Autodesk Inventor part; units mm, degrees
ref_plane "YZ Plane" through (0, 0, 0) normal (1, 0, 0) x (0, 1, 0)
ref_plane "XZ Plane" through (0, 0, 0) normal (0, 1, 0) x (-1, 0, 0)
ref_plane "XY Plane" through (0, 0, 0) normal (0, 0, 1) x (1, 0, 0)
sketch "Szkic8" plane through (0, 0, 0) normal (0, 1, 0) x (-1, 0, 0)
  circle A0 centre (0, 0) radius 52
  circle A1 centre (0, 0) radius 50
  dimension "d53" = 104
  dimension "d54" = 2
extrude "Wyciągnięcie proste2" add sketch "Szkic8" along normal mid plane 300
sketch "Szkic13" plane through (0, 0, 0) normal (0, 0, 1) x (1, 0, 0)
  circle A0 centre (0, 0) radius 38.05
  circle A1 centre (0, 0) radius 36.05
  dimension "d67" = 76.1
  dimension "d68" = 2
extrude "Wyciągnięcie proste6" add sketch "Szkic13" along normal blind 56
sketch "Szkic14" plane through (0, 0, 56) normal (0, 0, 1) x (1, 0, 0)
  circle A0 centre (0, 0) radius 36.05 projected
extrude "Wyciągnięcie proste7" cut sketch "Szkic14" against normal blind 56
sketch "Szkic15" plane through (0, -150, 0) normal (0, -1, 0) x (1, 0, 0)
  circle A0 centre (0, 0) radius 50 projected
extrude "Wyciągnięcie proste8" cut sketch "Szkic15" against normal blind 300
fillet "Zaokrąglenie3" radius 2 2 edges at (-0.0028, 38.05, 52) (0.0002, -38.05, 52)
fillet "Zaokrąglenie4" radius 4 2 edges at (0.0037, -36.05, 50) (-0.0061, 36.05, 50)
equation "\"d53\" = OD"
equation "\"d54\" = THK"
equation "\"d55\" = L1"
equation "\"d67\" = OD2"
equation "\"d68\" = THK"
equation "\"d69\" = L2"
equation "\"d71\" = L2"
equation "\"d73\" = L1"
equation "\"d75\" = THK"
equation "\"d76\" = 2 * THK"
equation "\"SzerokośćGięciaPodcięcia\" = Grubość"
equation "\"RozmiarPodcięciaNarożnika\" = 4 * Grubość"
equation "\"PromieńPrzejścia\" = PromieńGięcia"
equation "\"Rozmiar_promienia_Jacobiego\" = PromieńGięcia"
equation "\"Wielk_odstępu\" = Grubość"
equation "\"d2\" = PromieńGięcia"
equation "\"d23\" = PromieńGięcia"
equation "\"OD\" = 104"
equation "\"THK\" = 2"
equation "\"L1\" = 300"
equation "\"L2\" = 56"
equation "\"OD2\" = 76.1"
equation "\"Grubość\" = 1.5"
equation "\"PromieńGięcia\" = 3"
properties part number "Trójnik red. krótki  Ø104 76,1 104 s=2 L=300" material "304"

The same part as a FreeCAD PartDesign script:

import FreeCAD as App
import Part
import Sketcher
from FreeCAD import Vector


def edges_at(feature, points):
    """Names of the edges that pass closest to the given points."""
    edges = feature.Shape.Edges
    near = lambda p: min(range(len(edges)), key=lambda i: edges[i].distToShape(Part.Vertex(*p))[0])
    return sorted({f"Edge{near(p) + 1}" for p in points})

doc = App.newDocument("Part")
body = doc.addObject("PartDesign::Body", "Body")

# Sketch on XZ plane
sketch1 = body.newObject("Sketcher::SketchObject", "Sketch")
sketch1.AttachmentSupport = (doc.getObject("XZ_Plane"), [""])
sketch1.MapMode = "FlatFace"
sketch1.addGeometry(Part.Circle(Vector(0, 0, 0), Vector(0, 0, 1), 52), False)
sketch1.addGeometry(Part.Circle(Vector(0, 0, 0), Vector(0, 0, 1), 50), False)
sketch1.addConstraint(Sketcher.Constraint("Coincident", 0, 3, -1, 1))
sketch1.addConstraint(Sketcher.Constraint("Coincident", 1, 3, -1, 1))
sketch1.addConstraint(Sketcher.Constraint("Diameter", 0, 104.0))
sketch1.addConstraint(Sketcher.Constraint("Diameter", 1, 100.0))
pad1 = body.newObject("PartDesign::Pad", "Pad")
pad1.Profile = sketch1
pad1.Length = 300
pad1.Midplane = True

# Sketch on XY plane
sketch2 = body.newObject("Sketcher::SketchObject", "Sketch001")
sketch2.AttachmentSupport = (doc.getObject("XY_Plane"), [""])
sketch2.MapMode = "FlatFace"
sketch2.addGeometry(Part.Circle(Vector(0, 0, 0), Vector(0, 0, 1), 38.05), False)
sketch2.addGeometry(Part.Circle(Vector(0, 0, 0), Vector(0, 0, 1), 36.05), False)
sketch2.addConstraint(Sketcher.Constraint("Coincident", 0, 3, -1, 1))
sketch2.addConstraint(Sketcher.Constraint("Coincident", 1, 3, -1, 1))
sketch2.addConstraint(Sketcher.Constraint("Diameter", 0, 76.1))
sketch2.addConstraint(Sketcher.Constraint("Diameter", 1, 72.1))
pad2 = body.newObject("PartDesign::Pad", "Pad001")
pad2.Profile = sketch2
pad2.Length = 56

# Sketch on XY plane
sketch3 = body.newObject("Sketcher::SketchObject", "Sketch002")
sketch3.AttachmentSupport = (doc.getObject("XY_Plane"), [""])
sketch3.MapMode = "FlatFace"
sketch3.AttachmentOffset = App.Placement(Vector(0, 0, 56), App.Rotation())
sketch3.addGeometry(Part.Circle(Vector(0, 0, 0), Vector(0, 0, 1), 36.05), False)
sketch3.addConstraint(Sketcher.Constraint("Coincident", 0, 3, -1, 1))
sketch3.addConstraint(Sketcher.Constraint("Diameter", 0, 72.1))
pocket1 = body.newObject("PartDesign::Pocket", "Pocket")
pocket1.Profile = sketch3
pocket1.Length = 56

# Sketch on XZ plane
sketch4 = body.newObject("Sketcher::SketchObject", "Sketch003")
sketch4.AttachmentSupport = (doc.getObject("XZ_Plane"), [""])
sketch4.MapMode = "FlatFace"
sketch4.AttachmentOffset = App.Placement(Vector(0, 0, 150), App.Rotation())
sketch4.addGeometry(Part.Circle(Vector(0, 0, 0), Vector(0, 0, 1), 50), False)
sketch4.addConstraint(Sketcher.Constraint("Coincident", 0, 3, -1, 1))
sketch4.addConstraint(Sketcher.Constraint("Diameter", 0, 100.0))
pocket2 = body.newObject("PartDesign::Pocket", "Pocket001")
pocket2.Profile = sketch4
pocket2.Length = 300
doc.recompute()

fillet = body.newObject("PartDesign::Fillet", "Fillet")
fillet.Base = (pocket2, edges_at(pocket2, [(-0.003, 38.05, 52), (0, -38.05, 52)]))
fillet.Radius = 2
doc.recompute()

fillet2 = body.newObject("PartDesign::Fillet", "Fillet001")
fillet2.Base = (fillet, edges_at(fillet, [(0.004, -36.05, 50), (-0.006, 36.05, 50)]))
fillet2.Radius = 4

doc.recompute()
